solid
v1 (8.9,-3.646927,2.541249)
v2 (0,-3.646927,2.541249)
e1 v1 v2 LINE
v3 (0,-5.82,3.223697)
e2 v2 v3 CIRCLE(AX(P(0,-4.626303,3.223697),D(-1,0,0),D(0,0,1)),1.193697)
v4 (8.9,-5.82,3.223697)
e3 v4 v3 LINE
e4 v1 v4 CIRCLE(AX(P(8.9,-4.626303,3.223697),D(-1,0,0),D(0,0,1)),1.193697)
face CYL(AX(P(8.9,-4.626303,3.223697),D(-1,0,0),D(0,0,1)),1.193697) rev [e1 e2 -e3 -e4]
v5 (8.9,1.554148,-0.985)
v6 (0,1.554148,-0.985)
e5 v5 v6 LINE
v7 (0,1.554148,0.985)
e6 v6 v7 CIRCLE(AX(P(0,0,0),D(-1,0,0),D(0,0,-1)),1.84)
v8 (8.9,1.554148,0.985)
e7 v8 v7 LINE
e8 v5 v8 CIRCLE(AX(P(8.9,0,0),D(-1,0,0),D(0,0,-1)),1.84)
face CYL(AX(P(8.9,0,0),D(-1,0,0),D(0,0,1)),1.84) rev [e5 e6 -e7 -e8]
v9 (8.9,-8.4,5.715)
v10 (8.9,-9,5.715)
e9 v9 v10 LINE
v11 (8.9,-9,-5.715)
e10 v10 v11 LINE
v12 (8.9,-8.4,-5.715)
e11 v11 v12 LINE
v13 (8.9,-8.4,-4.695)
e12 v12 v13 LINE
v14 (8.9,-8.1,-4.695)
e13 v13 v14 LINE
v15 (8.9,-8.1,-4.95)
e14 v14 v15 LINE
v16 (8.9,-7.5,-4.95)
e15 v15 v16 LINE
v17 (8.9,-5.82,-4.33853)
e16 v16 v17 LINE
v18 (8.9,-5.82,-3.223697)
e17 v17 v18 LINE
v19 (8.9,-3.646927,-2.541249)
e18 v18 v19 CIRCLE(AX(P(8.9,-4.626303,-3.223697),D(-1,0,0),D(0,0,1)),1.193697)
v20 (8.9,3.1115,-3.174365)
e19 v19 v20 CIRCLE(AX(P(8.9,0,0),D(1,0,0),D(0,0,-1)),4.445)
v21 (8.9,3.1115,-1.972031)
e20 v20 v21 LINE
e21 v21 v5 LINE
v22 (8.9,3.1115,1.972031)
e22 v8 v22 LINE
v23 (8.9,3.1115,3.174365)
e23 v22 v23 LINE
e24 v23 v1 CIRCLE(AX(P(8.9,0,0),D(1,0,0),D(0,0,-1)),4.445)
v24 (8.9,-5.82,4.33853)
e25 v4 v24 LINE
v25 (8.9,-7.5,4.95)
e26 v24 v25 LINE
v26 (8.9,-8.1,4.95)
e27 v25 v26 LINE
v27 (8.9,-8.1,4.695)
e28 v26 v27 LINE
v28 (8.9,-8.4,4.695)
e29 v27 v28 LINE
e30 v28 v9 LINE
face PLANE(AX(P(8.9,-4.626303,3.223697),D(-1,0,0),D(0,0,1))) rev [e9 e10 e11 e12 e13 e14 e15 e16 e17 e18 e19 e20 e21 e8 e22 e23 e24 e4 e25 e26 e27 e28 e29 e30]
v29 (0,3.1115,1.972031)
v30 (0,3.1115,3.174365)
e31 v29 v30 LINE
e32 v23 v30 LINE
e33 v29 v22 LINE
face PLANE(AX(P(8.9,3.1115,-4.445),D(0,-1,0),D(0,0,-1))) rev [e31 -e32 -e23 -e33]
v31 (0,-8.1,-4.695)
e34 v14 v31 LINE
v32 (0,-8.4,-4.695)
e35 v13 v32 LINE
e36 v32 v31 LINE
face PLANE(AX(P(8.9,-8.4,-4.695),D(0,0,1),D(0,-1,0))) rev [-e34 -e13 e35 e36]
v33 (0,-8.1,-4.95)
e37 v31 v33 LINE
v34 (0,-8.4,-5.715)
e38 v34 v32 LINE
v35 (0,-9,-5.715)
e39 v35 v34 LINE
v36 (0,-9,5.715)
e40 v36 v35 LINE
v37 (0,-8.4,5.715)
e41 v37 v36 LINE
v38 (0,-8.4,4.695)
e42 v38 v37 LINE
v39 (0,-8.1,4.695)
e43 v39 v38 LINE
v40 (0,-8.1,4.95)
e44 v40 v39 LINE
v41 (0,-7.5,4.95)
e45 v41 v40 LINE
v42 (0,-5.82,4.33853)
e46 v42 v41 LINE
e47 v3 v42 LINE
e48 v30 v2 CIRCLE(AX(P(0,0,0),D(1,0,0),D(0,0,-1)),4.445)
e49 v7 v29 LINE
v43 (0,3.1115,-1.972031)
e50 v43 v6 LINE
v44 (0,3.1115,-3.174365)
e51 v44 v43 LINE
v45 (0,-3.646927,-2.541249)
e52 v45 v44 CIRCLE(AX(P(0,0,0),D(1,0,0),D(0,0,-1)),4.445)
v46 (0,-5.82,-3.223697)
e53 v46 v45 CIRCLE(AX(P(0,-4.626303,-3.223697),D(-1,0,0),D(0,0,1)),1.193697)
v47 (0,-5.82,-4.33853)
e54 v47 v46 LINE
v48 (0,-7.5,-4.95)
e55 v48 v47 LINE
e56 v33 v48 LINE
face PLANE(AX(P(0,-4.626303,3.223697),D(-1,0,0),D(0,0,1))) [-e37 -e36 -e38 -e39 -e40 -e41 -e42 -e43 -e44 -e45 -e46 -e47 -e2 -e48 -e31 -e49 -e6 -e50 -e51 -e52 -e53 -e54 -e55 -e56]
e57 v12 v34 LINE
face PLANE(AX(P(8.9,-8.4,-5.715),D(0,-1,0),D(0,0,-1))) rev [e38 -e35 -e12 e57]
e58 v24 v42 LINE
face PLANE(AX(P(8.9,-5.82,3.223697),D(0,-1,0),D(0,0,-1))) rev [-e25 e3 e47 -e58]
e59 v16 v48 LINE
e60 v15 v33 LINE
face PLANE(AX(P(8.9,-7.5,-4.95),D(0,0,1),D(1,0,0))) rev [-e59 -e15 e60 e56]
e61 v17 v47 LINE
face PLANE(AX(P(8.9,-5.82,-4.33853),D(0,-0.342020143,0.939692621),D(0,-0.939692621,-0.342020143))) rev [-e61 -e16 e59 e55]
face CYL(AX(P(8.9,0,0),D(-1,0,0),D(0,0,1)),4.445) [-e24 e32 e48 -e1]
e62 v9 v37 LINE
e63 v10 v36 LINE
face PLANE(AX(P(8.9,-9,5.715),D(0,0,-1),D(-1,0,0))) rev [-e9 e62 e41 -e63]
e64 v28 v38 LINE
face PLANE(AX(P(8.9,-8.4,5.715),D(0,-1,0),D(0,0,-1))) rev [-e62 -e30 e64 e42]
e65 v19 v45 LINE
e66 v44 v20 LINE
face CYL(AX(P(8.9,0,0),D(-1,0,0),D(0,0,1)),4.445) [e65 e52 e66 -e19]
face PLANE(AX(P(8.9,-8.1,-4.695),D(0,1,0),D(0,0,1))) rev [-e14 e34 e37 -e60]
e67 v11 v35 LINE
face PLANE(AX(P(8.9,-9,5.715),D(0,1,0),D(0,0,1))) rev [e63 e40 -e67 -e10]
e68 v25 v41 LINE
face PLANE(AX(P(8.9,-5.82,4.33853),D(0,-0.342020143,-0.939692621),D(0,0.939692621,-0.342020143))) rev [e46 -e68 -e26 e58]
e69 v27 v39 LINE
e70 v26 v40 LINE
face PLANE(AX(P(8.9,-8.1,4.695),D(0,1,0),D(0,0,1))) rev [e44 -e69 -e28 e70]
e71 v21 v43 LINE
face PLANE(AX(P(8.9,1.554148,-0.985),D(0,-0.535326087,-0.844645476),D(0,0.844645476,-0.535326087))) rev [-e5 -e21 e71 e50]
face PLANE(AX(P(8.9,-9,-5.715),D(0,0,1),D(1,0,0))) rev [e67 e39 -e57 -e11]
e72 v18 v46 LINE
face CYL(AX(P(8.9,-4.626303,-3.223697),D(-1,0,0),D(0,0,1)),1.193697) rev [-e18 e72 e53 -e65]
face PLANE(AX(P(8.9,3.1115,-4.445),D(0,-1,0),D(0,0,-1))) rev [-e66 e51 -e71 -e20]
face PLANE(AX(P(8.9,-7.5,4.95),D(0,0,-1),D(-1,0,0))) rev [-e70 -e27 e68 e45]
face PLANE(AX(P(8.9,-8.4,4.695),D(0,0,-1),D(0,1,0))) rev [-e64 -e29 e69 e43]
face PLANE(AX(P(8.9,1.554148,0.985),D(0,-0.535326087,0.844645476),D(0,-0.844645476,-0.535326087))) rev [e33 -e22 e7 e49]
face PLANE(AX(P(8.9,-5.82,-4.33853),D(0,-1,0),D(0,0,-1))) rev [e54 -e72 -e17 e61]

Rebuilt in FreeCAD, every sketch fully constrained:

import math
import FreeCAD as App
import Part
import Sketcher

V = App.Vector
Q = App.Units.Quantity

doc = App.newDocument("Part")
body = doc.addObject("PartDesign::Body", "Body")

# Sketch on YZ plane
sketch1 = doc.addObject("Sketcher::SketchObject", "Sketch")
body.addObject(sketch1)
sketch1.AttachmentSupport = (doc.YZ_Plane, [""])
sketch1.MapMode = "FlatFace"
sketch1.addGeometry(Part.LineSegment(V(-9, 5.71, 0), V(-9, -5.71, 0)), False)
sketch1.addGeometry(Part.LineSegment(V(-9, -5.71, 0), V(-8.4, -5.71, 0)), False)
sketch1.addGeometry(Part.LineSegment(V(-8.4, -5.71, 0), V(-8.4, -4.7, 0)), False)
sketch1.addGeometry(Part.LineSegment(V(-8.4, -4.7, 0), V(-8.1, -4.7, 0)), False)
sketch1.addGeometry(Part.LineSegment(V(-8.1, -4.7, 0), V(-8.1, -4.95, 0)), False)
sketch1.addGeometry(Part.LineSegment(V(-8.1, -4.95, 0), V(-7.5, -4.95, 0)), False)
sketch1.addGeometry(Part.LineSegment(V(-7.5, -4.95, 0), V(-5.82, -4.34, 0)), False)
sketch1.addGeometry(Part.LineSegment(V(-5.82, -4.34, 0), V(-5.82, -3.22, 0)), False)
sketch1.addGeometry(Part.ArcOfCircle(Part.Circle(V(-4.63, -3.22, 0), V(0, 0, 1), 1.19), math.radians(35), math.radians(180)), False)
sketch1.addGeometry(Part.ArcOfCircle(Part.Circle(V(0, 0, 0), V(0, 0, 1), 4.45), math.radians(-145), math.radians(-32)), False)
sketch1.addGeometry(Part.LineSegment(V(3.75, -2.38, 0), V(1.55, -0.98, 0)), False)
sketch1.addGeometry(Part.ArcOfCircle(Part.Circle(V(0, 0, 0), V(0, 0, 1), 1.84), math.radians(32), math.radians(328)), False)
sketch1.addGeometry(Part.LineSegment(V(1.55, 0.98, 0), V(3.75, 2.38, 0)), False)
sketch1.addGeometry(Part.ArcOfCircle(Part.Circle(V(0, 0, 0), V(0, 0, 1), 4.45), math.radians(32), math.radians(145)), False)
sketch1.addGeometry(Part.ArcOfCircle(Part.Circle(V(-4.63, 3.22, 0), V(0, 0, 1), 1.19), math.radians(180), math.radians(325)), False)
sketch1.addGeometry(Part.LineSegment(V(-5.82, 3.22, 0), V(-5.82, 4.34, 0)), False)
sketch1.addGeometry(Part.LineSegment(V(-5.82, 4.34, 0), V(-7.5, 4.95, 0)), False)
sketch1.addGeometry(Part.LineSegment(V(-7.5, 4.95, 0), V(-8.1, 4.95, 0)), False)
sketch1.addGeometry(Part.LineSegment(V(-8.1, 4.95, 0), V(-8.1, 4.7, 0)), False)
sketch1.addGeometry(Part.LineSegment(V(-8.1, 4.7, 0), V(-8.4, 4.7, 0)), False)
sketch1.addGeometry(Part.LineSegment(V(-8.4, 4.7, 0), V(-8.4, 5.71, 0)), False)
sketch1.addGeometry(Part.LineSegment(V(-8.4, 5.71, 0), V(-9, 5.71, 0)), False)
sketch1.addConstraint(Sketcher.Constraint("Coincident", 0, 2, 1, 1))
sketch1.addConstraint(Sketcher.Constraint("Coincident", 1, 2, 2, 1))
sketch1.addConstraint(Sketcher.Constraint("Coincident", 2, 2, 3, 1))
sketch1.addConstraint(Sketcher.Constraint("Coincident", 3, 2, 4, 1))
sketch1.addConstraint(Sketcher.Constraint("Coincident", 4, 2, 5, 1))
sketch1.addConstraint(Sketcher.Constraint("Coincident", 5, 2, 6, 1))
sketch1.addConstraint(Sketcher.Constraint("Coincident", 6, 2, 7, 1))
sketch1.addConstraint(Sketcher.Constraint("Tangent", 7, 2, 8, 2))
sketch1.addConstraint(Sketcher.Constraint("Tangent", 8, 1, 9, 1))
sketch1.addConstraint(Sketcher.Constraint("Coincident", 9, 2, 10, 1))
sketch1.addConstraint(Sketcher.Constraint("Coincident", 10, 2, 11, 2))
sketch1.addConstraint(Sketcher.Constraint("Coincident", 11, 1, 12, 1))
sketch1.addConstraint(Sketcher.Constraint("Coincident", 12, 2, 13, 1))
sketch1.addConstraint(Sketcher.Constraint("Tangent", 13, 2, 14, 2))
sketch1.addConstraint(Sketcher.Constraint("Tangent", 14, 1, 15, 1))
sketch1.addConstraint(Sketcher.Constraint("Coincident", 15, 2, 16, 1))
sketch1.addConstraint(Sketcher.Constraint("Coincident", 16, 2, 17, 1))
sketch1.addConstraint(Sketcher.Constraint("Coincident", 17, 2, 18, 1))
sketch1.addConstraint(Sketcher.Constraint("Coincident", 18, 2, 19, 1))
sketch1.addConstraint(Sketcher.Constraint("Coincident", 19, 2, 20, 1))
sketch1.addConstraint(Sketcher.Constraint("Coincident", 20, 2, 21, 1))
sketch1.addConstraint(Sketcher.Constraint("Coincident", 21, 2, 0, 1))
sketch1.addConstraint(Sketcher.Constraint("Vertical", 0))
sketch1.addConstraint(Sketcher.Constraint("Horizontal", 1))
sketch1.addConstraint(Sketcher.Constraint("Vertical", 2))
sketch1.addConstraint(Sketcher.Constraint("Horizontal", 3))
sketch1.addConstraint(Sketcher.Constraint("Vertical", 4))
sketch1.addConstraint(Sketcher.Constraint("Horizontal", 5))
sketch1.addConstraint(Sketcher.Constraint("Vertical", 7))
sketch1.addConstraint(Sketcher.Constraint("Vertical", 15))
sketch1.addConstraint(Sketcher.Constraint("Horizontal", 17))
sketch1.addConstraint(Sketcher.Constraint("Vertical", 18))
sketch1.addConstraint(Sketcher.Constraint("Horizontal", 19))
sketch1.addConstraint(Sketcher.Constraint("Vertical", 20))
sketch1.addConstraint(Sketcher.Constraint("Horizontal", 21))
sketch1.addConstraint(Sketcher.Constraint("Coincident", 9, 3, -1, 1))
sketch1.addConstraint(Sketcher.Constraint("Coincident", 11, 3, -1, 1))
sketch1.addConstraint(Sketcher.Constraint("Coincident", 13, 3, -1, 1))
sketch1.addConstraint(Sketcher.Constraint("Equal", 9, 13))
sketch1.addConstraint(Sketcher.Constraint("Equal", 8, 14))
sketch1.addConstraint(Sketcher.Constraint("Symmetric", 6, 2, 15, 2, -1))
sketch1.addConstraint(Sketcher.Constraint("Symmetric", 5, 2, 16, 2, -1))
sketch1.addConstraint(Sketcher.Constraint("Symmetric", 3, 2, 18, 2, -1))
sketch1.addConstraint(Sketcher.Constraint("Symmetric", 1, 2, 20, 2, -1))
sketch1.addConstraint(Sketcher.Constraint("Vertical", 10, 2, 11, 1))
sketch1.addConstraint(Sketcher.Constraint("Vertical", 9, 2, 12, 2))
sketch1.addConstraint(Sketcher.Constraint("Equal", 1, 5))
sketch1.addConstraint(Sketcher.Constraint("Angle", 6, Q("20 deg")))
sketch1.addConstraint(Sketcher.Constraint("Radius", 11, Q("1.84 mm")))
sketch1.addConstraint(Sketcher.Constraint("DistanceX", 1, 1, 1, 2, Q("0.6 mm")))
sketch1.addConstraint(Sketcher.Constraint("DistanceX", 3, 1, 3, 2, Q("0.3 mm")))
sketch1.addConstraint(Sketcher.Constraint("DistanceX", 0, 2, -1, 1, Q("9 mm")))
sketch1.addConstraint(Sketcher.Constraint("Radius", 9, Q("4.445 mm")))
sketch1.addConstraint(Sketcher.Constraint("DistanceY", 0, 2, 0, 1, Q("11.43 mm")))
sketch1.addConstraint(Sketcher.Constraint("DistanceY", 2, 1, 2, 2, Q("1.02 mm")))
sketch1.addConstraint(Sketcher.Constraint("DistanceY", 4, 2, 4, 1, Q("0.255 mm")))
sketch1.addConstraint(Sketcher.Constraint("DistanceX", 6, 2, -1, 1, Q("5.82 mm")))
sketch1.addConstraint(Sketcher.Constraint("DistanceY", 10, 2, 11, 1, Q("1.97 mm")))
sketch1.addConstraint(Sketcher.Constraint("Radius", 8, Q("1.193697 mm")))
sketch1.addConstraint(Sketcher.Constraint("DistanceX", 10, 2, 9, 2, Q("2.200301 mm")))
pad1 = doc.addObject("PartDesign::Pad", "Pad")
body.addObject(pad1)
pad1.Profile = sketch1
pad1.Length = 8.9

# Sketch on YZ plane
sketch2 = doc.addObject("Sketcher::SketchObject", "Sketch001")
body.addObject(sketch2)
sketch2.AttachmentSupport = (doc.YZ_Plane, [""])
sketch2.MapMode = "FlatFace"
sketch2.addGeometry(Part.LineSegment(V(12, -4, 0), V(3, -4, 0)), False)
sketch2.addGeometry(Part.LineSegment(V(3, -4, 0), V(3, 4, 0)), False)
sketch2.addGeometry(Part.LineSegment(V(3, 4, 0), V(12, 4, 0)), False)
sketch2.addGeometry(Part.LineSegment(V(12, 4, 0), V(12, -4, 0)), False)
sketch2.addConstraint(Sketcher.Constraint("Coincident", 0, 2, 1, 1))
sketch2.addConstraint(Sketcher.Constraint("Coincident", 1, 2, 2, 1))
sketch2.addConstraint(Sketcher.Constraint("Coincident", 2, 2, 3, 1))
sketch2.addConstraint(Sketcher.Constraint("Coincident", 3, 2, 0, 1))
sketch2.addConstraint(Sketcher.Constraint("Horizontal", 0))
sketch2.addConstraint(Sketcher.Constraint("Vertical", 1))
sketch2.addConstraint(Sketcher.Constraint("Horizontal", 2))
sketch2.addConstraint(Sketcher.Constraint("Vertical", 3))
sketch2.addConstraint(Sketcher.Constraint("Equal", 2, 1))
sketch2.addConstraint(Sketcher.Constraint("DistanceX", 0, 2, 0, 1, Q("8.89 mm")))
sketch2.addConstraint(Sketcher.Constraint("DistanceY", 0, 2, -1, 1, Q("4.445 mm")))
sketch2.addConstraint(Sketcher.Constraint("DistanceX", -1, 1, 0, 2, Q("3.1115 mm")))
pocket1 = doc.addObject("PartDesign::Pocket", "Pocket")
body.addObject(pocket1)
pocket1.Profile = sketch2
pocket1.Length = 8.9
pocket1.Reversed = True

doc.recompute()
